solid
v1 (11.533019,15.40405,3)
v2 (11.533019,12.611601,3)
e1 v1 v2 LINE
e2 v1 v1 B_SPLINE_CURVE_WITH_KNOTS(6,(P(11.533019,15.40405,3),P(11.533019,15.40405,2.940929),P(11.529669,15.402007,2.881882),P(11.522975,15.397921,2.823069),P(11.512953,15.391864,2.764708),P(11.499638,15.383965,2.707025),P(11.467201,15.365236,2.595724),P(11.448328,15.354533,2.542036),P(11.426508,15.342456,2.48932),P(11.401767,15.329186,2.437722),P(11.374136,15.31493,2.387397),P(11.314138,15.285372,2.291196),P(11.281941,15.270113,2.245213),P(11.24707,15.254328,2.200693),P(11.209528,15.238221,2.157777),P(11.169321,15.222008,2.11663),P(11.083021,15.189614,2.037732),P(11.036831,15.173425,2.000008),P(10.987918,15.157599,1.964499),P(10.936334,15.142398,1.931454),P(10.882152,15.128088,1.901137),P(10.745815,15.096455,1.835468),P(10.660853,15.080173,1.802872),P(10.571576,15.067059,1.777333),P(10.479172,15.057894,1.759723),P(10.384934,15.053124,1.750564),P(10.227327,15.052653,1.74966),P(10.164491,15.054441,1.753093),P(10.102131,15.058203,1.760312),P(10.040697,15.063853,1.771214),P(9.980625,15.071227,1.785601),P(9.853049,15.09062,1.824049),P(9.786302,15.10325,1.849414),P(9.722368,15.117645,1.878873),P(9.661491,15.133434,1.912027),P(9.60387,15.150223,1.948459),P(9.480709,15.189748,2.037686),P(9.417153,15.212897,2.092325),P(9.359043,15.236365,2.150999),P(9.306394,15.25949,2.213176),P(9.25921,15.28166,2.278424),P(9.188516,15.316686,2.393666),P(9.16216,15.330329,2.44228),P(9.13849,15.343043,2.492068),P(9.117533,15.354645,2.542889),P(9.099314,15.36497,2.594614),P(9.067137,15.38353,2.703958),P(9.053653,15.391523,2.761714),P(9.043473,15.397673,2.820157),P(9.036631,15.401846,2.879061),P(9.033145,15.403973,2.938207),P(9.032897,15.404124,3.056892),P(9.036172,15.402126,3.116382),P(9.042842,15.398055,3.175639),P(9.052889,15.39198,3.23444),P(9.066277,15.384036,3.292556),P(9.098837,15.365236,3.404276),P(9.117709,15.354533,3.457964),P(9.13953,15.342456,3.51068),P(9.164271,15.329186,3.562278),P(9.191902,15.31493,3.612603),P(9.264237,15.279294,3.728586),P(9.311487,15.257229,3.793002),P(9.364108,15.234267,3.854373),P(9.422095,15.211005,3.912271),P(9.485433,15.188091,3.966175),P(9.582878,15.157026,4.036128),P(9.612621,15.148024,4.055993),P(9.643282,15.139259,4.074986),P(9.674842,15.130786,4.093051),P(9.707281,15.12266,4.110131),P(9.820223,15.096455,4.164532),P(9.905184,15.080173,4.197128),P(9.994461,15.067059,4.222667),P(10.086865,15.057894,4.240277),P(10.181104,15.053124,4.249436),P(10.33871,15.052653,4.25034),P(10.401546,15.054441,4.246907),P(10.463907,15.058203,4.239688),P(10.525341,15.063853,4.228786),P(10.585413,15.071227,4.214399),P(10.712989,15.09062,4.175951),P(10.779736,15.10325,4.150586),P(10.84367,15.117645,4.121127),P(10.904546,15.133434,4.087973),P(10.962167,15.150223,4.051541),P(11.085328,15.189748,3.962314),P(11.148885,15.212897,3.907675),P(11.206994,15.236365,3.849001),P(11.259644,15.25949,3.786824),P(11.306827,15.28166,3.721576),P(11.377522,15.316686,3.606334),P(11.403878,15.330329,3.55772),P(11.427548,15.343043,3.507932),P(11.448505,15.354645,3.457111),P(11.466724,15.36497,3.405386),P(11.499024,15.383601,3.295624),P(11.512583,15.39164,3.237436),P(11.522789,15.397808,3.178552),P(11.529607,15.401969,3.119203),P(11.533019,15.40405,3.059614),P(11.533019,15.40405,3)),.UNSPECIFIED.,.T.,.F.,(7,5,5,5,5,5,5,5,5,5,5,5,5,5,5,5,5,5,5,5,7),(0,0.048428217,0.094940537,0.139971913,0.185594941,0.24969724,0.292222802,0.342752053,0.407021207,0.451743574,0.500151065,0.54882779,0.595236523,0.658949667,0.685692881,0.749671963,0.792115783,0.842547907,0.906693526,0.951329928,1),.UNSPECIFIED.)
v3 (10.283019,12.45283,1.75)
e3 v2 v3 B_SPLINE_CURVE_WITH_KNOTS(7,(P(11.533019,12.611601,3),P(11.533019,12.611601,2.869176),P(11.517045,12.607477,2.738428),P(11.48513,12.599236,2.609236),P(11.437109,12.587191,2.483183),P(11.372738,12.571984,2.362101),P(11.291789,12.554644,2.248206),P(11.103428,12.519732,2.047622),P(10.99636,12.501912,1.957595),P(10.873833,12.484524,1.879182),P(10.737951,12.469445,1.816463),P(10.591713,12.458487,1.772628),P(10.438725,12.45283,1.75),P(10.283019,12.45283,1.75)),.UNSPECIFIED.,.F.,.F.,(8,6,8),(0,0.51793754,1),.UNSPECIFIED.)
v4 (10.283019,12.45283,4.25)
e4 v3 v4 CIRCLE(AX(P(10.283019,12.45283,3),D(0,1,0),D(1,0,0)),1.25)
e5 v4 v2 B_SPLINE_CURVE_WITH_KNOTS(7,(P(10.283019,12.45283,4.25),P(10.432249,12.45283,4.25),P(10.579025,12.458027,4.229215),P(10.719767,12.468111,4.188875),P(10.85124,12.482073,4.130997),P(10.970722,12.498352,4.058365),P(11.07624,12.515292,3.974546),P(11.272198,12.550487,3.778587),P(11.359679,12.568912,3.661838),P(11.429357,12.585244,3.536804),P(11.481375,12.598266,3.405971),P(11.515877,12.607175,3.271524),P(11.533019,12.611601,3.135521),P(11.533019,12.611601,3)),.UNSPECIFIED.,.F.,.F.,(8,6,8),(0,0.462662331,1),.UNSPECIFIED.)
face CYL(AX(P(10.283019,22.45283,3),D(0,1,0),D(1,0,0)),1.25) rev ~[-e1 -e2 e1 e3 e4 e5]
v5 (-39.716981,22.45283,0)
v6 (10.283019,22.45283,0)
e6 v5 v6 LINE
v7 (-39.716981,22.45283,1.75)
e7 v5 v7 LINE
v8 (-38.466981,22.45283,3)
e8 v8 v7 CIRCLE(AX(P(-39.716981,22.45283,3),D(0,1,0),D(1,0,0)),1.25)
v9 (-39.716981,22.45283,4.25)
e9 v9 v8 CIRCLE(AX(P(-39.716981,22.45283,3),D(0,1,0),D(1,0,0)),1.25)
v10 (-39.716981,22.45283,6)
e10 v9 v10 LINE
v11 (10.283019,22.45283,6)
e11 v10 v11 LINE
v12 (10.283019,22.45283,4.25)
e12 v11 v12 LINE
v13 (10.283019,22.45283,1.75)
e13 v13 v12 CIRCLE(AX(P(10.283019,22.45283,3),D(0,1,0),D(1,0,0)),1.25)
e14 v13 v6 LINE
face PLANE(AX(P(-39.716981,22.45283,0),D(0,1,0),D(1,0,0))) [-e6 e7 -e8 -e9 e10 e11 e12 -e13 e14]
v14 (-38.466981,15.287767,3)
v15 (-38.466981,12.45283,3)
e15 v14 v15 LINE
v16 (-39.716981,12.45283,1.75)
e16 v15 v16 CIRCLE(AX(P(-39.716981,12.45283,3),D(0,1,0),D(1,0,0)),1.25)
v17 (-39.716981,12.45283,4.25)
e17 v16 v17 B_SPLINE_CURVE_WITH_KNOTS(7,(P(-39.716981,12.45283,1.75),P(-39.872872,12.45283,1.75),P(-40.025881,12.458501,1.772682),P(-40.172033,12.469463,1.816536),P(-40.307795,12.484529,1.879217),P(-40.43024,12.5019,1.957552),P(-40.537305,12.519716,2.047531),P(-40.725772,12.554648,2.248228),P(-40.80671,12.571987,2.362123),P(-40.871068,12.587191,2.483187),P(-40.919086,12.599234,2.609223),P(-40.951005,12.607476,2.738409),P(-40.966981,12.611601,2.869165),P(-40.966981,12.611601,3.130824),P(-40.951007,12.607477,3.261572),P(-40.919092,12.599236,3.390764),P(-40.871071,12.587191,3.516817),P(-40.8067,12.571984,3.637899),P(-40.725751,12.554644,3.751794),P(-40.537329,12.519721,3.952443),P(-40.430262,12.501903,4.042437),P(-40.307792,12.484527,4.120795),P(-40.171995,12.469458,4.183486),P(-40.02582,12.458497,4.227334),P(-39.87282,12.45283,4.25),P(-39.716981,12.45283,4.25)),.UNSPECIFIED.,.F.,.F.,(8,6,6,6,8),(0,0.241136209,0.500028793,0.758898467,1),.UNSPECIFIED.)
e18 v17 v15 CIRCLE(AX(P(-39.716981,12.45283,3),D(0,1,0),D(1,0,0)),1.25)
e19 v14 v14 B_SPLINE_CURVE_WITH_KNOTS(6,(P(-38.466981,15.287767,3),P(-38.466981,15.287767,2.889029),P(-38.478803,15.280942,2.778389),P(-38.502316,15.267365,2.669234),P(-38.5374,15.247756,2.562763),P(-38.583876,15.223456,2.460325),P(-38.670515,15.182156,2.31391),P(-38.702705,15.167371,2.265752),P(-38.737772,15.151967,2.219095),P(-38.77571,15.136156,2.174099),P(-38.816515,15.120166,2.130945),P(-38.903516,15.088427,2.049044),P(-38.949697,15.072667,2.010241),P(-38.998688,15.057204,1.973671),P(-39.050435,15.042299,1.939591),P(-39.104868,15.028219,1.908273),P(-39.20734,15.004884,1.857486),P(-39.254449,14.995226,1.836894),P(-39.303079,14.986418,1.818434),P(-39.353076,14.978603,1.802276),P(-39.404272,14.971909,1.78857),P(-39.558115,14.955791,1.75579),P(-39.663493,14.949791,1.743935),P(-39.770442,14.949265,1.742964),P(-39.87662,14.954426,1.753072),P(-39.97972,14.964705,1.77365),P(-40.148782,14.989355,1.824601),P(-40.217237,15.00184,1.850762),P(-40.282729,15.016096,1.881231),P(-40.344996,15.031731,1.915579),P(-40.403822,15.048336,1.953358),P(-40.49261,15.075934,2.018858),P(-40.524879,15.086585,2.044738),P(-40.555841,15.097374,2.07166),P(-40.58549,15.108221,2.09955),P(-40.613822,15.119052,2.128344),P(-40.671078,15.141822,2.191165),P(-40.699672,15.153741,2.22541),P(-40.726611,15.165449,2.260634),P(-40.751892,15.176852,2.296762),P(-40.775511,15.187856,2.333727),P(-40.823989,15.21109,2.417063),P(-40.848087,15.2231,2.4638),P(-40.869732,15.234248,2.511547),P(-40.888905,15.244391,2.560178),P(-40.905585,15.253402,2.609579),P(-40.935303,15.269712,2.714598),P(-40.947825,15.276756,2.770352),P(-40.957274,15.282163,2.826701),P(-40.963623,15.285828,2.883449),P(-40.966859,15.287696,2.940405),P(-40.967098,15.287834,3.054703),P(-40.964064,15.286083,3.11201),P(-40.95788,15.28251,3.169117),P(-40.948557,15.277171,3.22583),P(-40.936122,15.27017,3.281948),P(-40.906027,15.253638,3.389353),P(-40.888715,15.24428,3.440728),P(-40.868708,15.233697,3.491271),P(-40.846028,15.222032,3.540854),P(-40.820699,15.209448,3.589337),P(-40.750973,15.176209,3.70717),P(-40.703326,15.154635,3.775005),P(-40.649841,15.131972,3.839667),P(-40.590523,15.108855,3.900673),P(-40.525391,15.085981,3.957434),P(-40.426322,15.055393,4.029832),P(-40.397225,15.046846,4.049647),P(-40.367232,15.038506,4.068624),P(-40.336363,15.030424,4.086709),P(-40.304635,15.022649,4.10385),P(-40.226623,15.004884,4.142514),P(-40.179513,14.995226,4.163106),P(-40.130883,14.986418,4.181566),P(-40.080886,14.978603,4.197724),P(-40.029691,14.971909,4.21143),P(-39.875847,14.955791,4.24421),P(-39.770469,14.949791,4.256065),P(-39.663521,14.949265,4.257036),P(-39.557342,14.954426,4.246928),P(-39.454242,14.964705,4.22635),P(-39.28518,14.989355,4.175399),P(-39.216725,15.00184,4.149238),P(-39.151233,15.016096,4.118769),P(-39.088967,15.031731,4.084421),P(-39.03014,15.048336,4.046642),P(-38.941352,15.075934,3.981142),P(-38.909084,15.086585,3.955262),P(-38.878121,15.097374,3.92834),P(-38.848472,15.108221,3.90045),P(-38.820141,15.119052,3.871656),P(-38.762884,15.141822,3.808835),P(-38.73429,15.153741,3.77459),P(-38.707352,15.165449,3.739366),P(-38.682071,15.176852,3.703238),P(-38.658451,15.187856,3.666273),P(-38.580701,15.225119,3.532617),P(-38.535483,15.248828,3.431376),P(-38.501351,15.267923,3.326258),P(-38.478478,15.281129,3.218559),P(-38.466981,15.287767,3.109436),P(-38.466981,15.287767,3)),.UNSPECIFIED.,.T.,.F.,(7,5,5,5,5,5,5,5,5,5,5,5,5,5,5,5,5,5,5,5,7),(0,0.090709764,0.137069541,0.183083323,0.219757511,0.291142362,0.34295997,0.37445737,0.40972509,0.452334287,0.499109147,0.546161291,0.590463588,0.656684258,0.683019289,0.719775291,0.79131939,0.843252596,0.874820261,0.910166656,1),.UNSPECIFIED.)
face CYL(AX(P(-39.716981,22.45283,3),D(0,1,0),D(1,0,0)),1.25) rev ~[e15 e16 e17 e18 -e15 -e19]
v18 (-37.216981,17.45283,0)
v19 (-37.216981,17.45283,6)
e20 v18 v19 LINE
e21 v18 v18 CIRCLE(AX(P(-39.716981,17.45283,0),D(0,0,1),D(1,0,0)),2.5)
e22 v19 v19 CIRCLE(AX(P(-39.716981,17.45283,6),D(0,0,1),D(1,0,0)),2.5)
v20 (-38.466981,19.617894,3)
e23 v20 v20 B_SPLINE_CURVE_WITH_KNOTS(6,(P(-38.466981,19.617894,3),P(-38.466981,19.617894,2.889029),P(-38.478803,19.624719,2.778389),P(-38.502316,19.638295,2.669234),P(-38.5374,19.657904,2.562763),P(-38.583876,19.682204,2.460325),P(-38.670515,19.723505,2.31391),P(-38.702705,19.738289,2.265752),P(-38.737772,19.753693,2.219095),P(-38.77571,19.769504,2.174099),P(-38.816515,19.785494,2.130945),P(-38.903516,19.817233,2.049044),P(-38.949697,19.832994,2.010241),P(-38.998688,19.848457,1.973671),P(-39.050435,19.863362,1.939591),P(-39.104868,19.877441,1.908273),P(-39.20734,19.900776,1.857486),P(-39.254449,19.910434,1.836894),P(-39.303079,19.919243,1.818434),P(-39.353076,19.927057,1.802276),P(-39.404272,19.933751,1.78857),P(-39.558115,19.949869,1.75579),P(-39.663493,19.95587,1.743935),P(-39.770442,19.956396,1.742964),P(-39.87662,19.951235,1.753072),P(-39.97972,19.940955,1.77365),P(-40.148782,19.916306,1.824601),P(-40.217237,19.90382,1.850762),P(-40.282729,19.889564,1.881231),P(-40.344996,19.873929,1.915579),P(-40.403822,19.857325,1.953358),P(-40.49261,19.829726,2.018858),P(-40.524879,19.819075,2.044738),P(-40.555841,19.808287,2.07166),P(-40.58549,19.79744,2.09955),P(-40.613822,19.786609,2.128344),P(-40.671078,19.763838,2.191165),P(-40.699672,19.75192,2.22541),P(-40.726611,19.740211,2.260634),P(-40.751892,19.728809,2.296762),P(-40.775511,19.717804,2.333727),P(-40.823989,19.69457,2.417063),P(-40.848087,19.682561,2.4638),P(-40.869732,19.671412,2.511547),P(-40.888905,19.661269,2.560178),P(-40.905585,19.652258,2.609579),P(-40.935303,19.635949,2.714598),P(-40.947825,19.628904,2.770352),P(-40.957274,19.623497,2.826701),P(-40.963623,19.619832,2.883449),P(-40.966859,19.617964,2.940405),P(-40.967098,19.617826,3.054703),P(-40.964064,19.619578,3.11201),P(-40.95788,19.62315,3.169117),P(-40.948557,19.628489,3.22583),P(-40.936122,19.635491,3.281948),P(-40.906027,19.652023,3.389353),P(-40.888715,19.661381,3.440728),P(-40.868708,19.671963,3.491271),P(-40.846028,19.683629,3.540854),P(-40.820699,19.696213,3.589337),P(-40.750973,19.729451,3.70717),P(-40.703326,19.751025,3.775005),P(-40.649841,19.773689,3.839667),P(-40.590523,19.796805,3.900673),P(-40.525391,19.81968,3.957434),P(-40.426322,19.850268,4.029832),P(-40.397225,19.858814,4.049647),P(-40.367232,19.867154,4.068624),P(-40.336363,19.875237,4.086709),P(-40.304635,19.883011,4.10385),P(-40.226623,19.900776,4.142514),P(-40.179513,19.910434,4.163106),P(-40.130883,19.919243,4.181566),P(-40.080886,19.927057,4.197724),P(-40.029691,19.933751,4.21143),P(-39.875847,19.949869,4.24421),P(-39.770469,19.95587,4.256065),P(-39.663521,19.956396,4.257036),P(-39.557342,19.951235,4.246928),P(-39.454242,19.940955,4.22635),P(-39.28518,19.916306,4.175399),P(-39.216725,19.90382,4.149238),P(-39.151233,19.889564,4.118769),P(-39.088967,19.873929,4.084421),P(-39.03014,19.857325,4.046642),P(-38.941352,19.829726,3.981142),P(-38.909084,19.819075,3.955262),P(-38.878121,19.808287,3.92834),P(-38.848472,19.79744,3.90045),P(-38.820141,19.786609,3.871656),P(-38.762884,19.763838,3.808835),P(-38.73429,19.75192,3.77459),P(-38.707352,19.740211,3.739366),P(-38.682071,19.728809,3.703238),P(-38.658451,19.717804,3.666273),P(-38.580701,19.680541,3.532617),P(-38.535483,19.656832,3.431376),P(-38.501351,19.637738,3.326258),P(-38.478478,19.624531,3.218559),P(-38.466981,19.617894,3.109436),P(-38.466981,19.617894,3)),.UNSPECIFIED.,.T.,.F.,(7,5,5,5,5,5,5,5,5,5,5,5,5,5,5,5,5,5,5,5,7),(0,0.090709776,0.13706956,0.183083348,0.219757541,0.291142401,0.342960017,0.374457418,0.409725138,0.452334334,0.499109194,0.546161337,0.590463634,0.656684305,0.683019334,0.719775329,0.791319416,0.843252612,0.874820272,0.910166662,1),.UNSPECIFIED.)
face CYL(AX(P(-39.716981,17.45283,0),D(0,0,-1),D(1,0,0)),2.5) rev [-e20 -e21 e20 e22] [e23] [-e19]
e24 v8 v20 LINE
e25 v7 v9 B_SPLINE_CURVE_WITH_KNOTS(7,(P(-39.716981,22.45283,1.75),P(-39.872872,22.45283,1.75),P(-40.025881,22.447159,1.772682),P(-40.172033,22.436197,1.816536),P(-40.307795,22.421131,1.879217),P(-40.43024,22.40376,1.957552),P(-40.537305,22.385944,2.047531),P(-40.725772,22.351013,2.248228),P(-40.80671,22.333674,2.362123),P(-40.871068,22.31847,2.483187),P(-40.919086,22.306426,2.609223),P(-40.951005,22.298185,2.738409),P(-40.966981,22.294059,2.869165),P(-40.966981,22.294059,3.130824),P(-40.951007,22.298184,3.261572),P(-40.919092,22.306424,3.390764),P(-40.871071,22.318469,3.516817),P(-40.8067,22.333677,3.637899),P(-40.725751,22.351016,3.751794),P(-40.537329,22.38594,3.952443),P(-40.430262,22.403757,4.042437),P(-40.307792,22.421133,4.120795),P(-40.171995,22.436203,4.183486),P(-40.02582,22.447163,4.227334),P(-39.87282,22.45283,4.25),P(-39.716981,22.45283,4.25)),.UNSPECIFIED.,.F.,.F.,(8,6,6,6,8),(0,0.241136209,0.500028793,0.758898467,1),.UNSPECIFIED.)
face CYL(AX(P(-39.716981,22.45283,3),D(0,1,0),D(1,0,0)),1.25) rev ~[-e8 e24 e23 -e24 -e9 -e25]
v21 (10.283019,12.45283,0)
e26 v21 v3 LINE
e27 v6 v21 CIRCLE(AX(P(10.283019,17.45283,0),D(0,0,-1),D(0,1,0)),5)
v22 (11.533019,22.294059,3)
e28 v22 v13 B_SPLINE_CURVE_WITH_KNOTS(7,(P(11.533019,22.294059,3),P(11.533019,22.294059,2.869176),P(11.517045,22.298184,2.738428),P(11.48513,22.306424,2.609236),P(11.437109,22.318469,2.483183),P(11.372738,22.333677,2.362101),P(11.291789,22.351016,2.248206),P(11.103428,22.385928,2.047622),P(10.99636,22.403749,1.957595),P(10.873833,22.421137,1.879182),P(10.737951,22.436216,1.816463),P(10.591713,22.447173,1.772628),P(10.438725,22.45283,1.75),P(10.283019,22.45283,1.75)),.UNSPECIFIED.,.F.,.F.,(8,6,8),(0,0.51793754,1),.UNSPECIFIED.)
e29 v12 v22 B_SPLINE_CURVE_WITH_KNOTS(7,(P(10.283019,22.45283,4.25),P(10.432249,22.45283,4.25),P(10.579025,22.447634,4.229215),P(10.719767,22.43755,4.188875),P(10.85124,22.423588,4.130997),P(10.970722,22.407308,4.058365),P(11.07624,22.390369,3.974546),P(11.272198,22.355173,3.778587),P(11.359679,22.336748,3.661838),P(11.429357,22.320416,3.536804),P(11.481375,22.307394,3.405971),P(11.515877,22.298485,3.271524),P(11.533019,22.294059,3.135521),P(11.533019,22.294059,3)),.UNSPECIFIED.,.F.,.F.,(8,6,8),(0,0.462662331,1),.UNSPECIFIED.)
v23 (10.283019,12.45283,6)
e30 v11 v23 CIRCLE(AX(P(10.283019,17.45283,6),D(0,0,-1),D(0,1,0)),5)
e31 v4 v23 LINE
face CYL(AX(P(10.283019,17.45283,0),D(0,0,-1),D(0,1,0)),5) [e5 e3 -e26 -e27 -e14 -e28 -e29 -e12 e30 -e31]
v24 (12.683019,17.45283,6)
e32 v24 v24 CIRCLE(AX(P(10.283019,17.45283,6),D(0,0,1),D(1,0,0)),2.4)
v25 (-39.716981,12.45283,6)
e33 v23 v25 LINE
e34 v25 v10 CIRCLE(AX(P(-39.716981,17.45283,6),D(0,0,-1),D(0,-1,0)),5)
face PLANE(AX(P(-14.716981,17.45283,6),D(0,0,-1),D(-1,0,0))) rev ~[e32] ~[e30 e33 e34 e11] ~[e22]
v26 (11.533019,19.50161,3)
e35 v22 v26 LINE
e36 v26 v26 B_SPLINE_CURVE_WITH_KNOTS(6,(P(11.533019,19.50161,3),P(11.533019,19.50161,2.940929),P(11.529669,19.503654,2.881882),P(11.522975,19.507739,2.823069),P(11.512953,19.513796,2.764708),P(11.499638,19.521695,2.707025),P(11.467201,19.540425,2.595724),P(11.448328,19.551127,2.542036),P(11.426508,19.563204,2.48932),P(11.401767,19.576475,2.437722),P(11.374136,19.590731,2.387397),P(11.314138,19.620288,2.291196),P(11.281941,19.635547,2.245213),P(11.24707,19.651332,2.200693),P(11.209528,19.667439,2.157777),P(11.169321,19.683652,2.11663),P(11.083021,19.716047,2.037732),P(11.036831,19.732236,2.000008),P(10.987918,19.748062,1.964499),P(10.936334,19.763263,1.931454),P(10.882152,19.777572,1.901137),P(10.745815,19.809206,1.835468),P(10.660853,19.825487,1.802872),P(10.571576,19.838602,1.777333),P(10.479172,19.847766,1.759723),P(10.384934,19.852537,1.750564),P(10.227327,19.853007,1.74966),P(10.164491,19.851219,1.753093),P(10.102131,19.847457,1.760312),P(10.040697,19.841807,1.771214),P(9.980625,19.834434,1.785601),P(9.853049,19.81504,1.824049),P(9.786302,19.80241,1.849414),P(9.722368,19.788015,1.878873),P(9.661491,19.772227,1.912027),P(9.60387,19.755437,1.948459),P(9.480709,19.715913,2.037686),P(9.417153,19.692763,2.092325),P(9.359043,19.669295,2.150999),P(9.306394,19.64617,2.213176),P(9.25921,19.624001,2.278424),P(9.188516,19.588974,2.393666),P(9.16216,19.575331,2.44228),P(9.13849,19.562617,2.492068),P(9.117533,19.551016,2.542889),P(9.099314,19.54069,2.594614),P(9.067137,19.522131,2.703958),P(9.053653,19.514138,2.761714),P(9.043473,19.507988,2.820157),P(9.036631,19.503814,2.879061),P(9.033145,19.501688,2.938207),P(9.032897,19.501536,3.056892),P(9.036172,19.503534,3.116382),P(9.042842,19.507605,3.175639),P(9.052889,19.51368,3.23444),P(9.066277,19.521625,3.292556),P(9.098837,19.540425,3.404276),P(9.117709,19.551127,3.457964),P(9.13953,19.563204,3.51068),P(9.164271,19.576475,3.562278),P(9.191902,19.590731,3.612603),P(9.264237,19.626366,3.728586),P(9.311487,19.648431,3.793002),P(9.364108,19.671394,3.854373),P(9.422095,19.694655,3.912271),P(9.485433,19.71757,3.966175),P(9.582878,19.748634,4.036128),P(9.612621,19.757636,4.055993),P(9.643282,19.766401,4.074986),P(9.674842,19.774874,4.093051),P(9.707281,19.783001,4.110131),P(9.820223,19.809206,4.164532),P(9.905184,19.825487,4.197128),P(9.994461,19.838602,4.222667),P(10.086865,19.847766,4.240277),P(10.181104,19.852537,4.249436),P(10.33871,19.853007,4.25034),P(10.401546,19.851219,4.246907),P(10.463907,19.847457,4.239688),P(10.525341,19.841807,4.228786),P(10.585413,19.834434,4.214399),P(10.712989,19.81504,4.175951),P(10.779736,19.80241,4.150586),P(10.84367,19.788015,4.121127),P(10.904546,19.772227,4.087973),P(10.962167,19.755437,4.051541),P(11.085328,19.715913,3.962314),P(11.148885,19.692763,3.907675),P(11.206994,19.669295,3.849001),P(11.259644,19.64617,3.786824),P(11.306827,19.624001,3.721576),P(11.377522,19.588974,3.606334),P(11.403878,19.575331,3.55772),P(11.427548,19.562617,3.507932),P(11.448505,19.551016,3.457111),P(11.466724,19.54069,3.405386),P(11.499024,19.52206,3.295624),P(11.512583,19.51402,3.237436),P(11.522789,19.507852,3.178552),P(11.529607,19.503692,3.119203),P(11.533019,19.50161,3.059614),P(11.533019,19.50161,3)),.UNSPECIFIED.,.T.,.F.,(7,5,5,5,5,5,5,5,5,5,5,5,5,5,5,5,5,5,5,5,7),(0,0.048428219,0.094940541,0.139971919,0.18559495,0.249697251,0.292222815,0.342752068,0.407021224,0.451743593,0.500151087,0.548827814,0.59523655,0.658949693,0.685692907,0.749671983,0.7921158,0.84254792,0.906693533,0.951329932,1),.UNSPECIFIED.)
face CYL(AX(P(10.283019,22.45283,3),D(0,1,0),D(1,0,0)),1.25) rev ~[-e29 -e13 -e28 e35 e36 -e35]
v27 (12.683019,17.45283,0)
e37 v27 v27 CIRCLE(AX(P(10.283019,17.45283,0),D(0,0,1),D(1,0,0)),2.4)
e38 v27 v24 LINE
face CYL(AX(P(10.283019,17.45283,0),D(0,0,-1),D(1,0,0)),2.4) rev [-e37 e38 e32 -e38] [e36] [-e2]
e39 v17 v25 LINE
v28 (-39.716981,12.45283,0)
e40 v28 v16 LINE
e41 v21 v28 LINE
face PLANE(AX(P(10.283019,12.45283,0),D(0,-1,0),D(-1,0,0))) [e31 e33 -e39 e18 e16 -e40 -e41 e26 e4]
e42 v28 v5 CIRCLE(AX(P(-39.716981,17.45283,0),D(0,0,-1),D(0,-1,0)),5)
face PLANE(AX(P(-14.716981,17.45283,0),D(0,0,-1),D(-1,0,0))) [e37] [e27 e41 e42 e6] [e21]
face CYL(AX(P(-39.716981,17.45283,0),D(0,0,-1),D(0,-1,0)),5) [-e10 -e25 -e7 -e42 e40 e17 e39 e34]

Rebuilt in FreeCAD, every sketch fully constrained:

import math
import FreeCAD as App
import Part
import Sketcher
from FreeCAD import Vector

doc = App.newDocument("Part")
body = doc.addObject("PartDesign::Body", "Body")

# Sketch on XY plane
sketch1 = doc.addObject("Sketcher::SketchObject", "Sketch")
body.addObject(sketch1)
sketch1.AttachmentSupport = (doc.XY_Plane, [""])
sketch1.MapMode = "FlatFace"
sketch1.addGeometry([
    Part.LineSegment(Vector(10.3, 22.5, 0), Vector(-39.7, 22.5, 0)),  # 0
    Part.ArcOfCircle(Part.Circle(Vector(-39.7, 17.5, 0), Vector(0, 0, 1), 5), math.radians(90), math.radians(270)),  # 1
    Part.LineSegment(Vector(-39.7, 12.5, 0), Vector(10.3, 12.5, 0)),  # 2
    Part.ArcOfCircle(Part.Circle(Vector(10.3, 17.5, 0), Vector(0, 0, 1), 5), math.radians(-90), math.radians(90)),  # 3
    Part.Circle(Vector(10.3, 17.5, 0), Vector(0, 0, 1), 2.4),  # 4
    Part.Circle(Vector(-39.7, 17.5, 0), Vector(0, 0, 1), 2.5),  # 5
], False)
sketch1.addConstraint([
    Sketcher.Constraint("Tangent", 0, 2, 1, 1),
    Sketcher.Constraint("Tangent", 1, 2, 2, 1),
    Sketcher.Constraint("Tangent", 2, 2, 3, 1),
    Sketcher.Constraint("Tangent", 3, 2, 0, 1),
    Sketcher.Constraint("Horizontal", 0),
    Sketcher.Constraint("Horizontal", 2),
    Sketcher.Constraint("Coincident", 4, 3, 3, 3),
    Sketcher.Constraint("Coincident", 5, 3, 1, 3),
    Sketcher.Constraint("Diameter", 5, 5.0),
    Sketcher.Constraint("Radius", 1, 5.0),
    Sketcher.Constraint("Diameter", 4, 4.8),
    Sketcher.Constraint("DistanceX", 0, 2, 0, 1, 50.0),
    Sketcher.Constraint("DistanceX", 1, 3, -1, 1, 39.716981),
    Sketcher.Constraint("DistanceY", -1, 1, 1, 3, 17.45283),
])
pad1 = doc.addObject("PartDesign::Pad", "Pad")
body.addObject(pad1)
pad1.Profile = sketch1
pad1.Length = 6

# Sketch on XZ plane
sketch2 = doc.addObject("Sketcher::SketchObject", "Sketch001")
body.addObject(sketch2)
sketch2.AttachmentSupport = (doc.XZ_Plane, [""])
sketch2.MapMode = "FlatFace"
sketch2.AttachmentOffset = App.Placement(Vector(0, 0, -22.45283), App.Rotation())
sketch2.addGeometry([
    Part.Circle(Vector(-39.7, 3, 0), Vector(0, 0, 1), 1.2),
    Part.Circle(Vector(10.3, 3, 0), Vector(0, 0, 1), 1.2),
], False)
sketch2.addConstraint([
    Sketcher.Constraint("Equal", 0, 1),
    Sketcher.Constraint("Horizontal", 0, 3, 1, 3),
    Sketcher.Constraint("Diameter", 0, 2.5),
    Sketcher.Constraint("DistanceY", -1, 1, 0, 3, 3.0),
    Sketcher.Constraint("DistanceX", 0, 3, 1, 3, 50.0),
    Sketcher.Constraint("DistanceX", 0, 3, -1, 1, 39.716981),
])
pocket1 = doc.addObject("PartDesign::Pocket", "Pocket")
body.addObject(pocket1)
pocket1.Profile = sketch2
pocket1.Type = "ThroughAll"
pocket1.Midplane = True

doc.recompute()
